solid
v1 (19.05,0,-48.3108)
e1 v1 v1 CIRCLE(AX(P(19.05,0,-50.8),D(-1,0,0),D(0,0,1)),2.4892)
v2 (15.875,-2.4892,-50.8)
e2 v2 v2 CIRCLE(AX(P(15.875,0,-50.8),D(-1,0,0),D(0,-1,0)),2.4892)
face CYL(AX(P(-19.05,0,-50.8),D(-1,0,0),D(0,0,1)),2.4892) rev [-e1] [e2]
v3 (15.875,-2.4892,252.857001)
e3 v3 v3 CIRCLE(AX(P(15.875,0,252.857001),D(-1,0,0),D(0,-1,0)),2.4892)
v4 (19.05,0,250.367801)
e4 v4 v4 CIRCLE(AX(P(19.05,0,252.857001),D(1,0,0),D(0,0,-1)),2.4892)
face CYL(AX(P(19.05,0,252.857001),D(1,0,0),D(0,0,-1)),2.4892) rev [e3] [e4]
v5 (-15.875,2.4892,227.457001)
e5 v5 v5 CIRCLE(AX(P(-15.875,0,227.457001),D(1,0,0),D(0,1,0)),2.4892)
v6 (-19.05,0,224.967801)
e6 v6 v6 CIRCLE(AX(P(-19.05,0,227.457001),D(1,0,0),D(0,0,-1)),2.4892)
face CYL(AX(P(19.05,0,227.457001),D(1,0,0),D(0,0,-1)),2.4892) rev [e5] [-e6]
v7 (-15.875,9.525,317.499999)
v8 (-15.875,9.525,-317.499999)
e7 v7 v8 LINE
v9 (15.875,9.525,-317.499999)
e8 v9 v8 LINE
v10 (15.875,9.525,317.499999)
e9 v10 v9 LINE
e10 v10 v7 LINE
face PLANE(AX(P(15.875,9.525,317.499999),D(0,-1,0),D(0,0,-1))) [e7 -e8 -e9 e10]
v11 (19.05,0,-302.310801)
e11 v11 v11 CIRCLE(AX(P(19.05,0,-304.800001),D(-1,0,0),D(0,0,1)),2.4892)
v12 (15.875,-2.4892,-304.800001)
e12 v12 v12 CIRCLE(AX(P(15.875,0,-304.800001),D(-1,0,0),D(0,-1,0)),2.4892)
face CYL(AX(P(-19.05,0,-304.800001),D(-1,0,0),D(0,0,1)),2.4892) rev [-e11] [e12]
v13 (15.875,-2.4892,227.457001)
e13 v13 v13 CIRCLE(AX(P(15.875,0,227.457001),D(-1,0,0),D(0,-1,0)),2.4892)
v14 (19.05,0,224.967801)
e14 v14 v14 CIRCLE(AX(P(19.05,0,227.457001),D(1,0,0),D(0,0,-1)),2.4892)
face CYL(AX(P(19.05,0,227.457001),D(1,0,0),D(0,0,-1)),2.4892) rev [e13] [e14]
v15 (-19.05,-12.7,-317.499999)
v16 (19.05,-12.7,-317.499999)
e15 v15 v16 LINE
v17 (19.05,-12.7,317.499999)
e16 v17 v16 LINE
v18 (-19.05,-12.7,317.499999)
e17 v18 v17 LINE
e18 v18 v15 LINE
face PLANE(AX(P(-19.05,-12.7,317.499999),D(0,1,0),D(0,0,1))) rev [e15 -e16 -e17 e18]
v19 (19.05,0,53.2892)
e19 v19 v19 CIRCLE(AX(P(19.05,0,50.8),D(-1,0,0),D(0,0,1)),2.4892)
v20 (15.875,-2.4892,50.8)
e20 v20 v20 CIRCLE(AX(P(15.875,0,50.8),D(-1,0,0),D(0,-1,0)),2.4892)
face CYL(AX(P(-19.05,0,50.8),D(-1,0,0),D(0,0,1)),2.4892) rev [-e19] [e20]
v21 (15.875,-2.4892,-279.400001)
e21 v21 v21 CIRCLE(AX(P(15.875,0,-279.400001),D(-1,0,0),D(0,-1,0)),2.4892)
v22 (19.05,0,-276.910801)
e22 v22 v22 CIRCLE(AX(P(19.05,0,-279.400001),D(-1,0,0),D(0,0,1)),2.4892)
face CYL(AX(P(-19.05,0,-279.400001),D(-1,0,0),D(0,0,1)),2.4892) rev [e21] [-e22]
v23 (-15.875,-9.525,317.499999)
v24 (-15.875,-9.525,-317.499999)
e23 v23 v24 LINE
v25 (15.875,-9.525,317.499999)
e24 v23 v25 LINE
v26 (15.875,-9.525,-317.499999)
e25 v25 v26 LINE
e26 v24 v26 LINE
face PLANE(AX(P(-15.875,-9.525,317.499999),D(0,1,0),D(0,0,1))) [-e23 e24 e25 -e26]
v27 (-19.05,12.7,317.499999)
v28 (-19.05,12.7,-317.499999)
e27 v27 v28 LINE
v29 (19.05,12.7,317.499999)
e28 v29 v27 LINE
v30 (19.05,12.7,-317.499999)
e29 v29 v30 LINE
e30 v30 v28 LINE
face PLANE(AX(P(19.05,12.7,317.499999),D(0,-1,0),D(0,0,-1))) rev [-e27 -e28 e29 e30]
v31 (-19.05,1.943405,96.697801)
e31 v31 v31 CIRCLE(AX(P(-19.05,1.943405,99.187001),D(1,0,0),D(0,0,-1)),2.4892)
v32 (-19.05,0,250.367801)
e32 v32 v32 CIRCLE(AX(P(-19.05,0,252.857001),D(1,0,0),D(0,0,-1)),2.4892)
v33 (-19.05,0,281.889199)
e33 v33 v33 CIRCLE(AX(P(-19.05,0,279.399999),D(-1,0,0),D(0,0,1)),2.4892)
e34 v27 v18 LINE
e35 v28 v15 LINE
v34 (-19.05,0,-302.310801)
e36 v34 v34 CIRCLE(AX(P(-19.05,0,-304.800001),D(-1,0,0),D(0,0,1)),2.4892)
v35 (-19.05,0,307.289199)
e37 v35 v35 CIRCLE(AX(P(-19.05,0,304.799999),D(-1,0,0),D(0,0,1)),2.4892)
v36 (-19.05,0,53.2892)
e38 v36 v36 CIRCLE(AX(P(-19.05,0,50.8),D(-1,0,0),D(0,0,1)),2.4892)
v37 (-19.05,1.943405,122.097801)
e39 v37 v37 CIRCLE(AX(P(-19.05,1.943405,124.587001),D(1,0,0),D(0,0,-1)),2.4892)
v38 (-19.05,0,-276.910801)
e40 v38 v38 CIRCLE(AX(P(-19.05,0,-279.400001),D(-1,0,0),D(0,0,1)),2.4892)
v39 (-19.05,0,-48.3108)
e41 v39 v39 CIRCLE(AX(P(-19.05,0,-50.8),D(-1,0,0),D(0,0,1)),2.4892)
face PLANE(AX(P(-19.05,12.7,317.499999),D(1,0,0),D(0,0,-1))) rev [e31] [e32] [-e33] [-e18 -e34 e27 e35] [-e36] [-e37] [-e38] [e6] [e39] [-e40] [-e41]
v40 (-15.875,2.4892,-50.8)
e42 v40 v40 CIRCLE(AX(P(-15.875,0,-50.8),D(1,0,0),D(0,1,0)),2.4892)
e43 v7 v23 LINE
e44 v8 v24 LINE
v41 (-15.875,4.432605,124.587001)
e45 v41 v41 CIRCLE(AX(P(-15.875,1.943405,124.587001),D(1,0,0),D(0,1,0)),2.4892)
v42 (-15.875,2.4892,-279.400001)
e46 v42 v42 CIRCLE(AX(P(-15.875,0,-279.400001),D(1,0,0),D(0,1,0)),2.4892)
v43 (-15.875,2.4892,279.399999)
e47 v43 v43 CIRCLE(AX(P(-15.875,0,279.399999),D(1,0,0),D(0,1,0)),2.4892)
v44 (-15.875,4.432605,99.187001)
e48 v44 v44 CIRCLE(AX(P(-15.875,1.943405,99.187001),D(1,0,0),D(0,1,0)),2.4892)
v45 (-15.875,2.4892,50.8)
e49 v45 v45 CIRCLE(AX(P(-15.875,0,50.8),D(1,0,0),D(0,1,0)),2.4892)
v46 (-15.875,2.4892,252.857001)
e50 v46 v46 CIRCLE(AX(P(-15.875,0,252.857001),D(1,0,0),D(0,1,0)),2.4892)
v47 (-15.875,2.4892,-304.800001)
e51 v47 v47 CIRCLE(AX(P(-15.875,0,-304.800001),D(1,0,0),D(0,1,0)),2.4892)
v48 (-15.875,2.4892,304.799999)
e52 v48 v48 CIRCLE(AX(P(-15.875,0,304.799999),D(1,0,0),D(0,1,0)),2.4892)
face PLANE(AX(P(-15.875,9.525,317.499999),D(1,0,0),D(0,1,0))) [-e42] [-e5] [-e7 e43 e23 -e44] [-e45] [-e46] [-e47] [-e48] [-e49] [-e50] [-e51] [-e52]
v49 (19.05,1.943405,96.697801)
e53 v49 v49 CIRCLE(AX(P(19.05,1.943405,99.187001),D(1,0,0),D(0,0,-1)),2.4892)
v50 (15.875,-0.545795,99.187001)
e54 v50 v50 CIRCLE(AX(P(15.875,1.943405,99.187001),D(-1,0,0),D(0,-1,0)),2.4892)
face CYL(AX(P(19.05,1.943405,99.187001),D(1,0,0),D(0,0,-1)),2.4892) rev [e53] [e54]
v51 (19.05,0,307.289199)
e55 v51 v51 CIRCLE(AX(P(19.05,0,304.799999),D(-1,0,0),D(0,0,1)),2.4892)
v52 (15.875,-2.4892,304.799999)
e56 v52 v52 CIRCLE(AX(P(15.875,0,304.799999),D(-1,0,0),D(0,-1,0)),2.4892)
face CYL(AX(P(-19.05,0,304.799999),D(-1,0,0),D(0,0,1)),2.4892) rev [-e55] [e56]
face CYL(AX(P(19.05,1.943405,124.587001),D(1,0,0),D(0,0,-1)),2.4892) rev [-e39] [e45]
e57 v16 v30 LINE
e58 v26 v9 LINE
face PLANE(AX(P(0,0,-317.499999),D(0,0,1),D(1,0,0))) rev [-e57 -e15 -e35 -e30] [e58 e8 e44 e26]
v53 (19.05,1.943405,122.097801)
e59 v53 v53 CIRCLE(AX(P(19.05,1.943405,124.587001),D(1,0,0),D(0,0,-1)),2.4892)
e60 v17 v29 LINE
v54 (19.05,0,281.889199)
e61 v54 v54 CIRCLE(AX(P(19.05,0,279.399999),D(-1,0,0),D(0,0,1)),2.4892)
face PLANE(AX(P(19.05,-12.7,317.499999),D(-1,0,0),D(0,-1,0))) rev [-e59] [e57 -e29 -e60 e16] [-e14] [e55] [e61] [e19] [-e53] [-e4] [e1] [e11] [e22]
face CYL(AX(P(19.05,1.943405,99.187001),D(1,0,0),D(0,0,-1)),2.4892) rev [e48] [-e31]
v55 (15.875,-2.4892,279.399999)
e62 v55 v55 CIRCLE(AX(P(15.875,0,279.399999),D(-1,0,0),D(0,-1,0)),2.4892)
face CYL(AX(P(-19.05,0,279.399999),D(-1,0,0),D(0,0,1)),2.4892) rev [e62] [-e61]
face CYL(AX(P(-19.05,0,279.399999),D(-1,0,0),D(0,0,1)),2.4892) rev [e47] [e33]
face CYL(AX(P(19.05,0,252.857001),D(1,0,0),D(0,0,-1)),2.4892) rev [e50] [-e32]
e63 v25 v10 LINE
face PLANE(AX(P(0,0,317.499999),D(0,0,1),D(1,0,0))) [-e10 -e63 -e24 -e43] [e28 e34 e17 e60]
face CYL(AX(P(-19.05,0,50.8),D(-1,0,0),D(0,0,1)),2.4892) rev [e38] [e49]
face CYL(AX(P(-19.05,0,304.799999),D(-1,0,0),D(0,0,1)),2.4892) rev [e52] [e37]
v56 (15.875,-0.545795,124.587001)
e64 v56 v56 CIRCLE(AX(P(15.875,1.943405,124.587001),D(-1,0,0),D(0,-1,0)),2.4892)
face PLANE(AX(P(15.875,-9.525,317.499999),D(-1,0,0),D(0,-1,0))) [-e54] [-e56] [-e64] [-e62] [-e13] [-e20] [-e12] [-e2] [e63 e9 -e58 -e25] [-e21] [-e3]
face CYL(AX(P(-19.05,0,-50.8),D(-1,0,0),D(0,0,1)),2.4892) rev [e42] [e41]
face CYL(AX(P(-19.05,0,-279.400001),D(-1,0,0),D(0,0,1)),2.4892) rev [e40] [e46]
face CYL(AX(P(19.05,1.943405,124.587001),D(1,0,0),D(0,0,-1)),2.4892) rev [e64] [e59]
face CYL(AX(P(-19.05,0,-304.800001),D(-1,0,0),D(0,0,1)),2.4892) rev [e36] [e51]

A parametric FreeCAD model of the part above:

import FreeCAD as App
import Part
import Sketcher

V = App.Vector
Q = App.Units.Quantity


def add_polygon(sketch, points):
    """Adds a closed chain of lines whose ends are joined by coincident constraints."""
    first, n = sketch.GeometryCount, len(points)
    for a, b in zip(points, points[1:] + points[:1]):
        sketch.addGeometry(Part.LineSegment(App.Vector(*a, 0), App.Vector(*b, 0)), False)
    for i in range(n):
        sketch.addConstraint(Sketcher.Constraint("Coincident", first + i, 2, first + (i + 1) % n, 1))

doc = App.newDocument("Part")
body = doc.addObject("PartDesign::Body", "Body")

# Sketch on XY plane
sketch1 = body.newObject("Sketcher::SketchObject", "Sketch")
sketch1.AttachmentSupport = (doc.getObject("XY_Plane"), [""])
sketch1.MapMode = "FlatFace"
add_polygon(sketch1, [(-19.05, 12.7), (-19.05, -12.7), (19.05, -12.7), (19.05, 12.7)])  # lines 0-3
add_polygon(sketch1, [(15.875, -9.525), (-15.875, -9.525), (-15.875, 9.525), (15.875, 9.525)])  # lines 4-7
sketch1.addConstraint([
    Sketcher.Constraint("Vertical", 0),
    Sketcher.Constraint("Horizontal", 1),
    Sketcher.Constraint("Vertical", 2),
    Sketcher.Constraint("Horizontal", 3),
    Sketcher.Constraint("Horizontal", 4),
    Sketcher.Constraint("Vertical", 5),
    Sketcher.Constraint("Horizontal", 6),
    Sketcher.Constraint("Vertical", 7),
    Sketcher.Constraint("Symmetric", 0, 2, 2, 2, -1, 1),
    Sketcher.Constraint("Symmetric", 4, 2, 6, 2, -1, 1),
    Sketcher.Constraint("DistanceY", 0, 2, 0, 1, Q("1 in")),
    Sketcher.Constraint("DistanceX", 1, 1, 1, 2, Q("1.5 in")),
    Sketcher.Constraint("DistanceX", 4, 2, 4, 1, Q("1.25 in")),
    Sketcher.Constraint("DistanceY", 5, 1, 5, 2, Q("0.75 in")),
])
pad1 = body.newObject("PartDesign::Pad", "Pad")
pad1.Profile = sketch1
pad1.Type = "TwoLengths"
pad1.Length = Q("12.5 in")
pad1.Length2 = Q("12.5 in")

# Sketch on YZ plane
sketch2 = body.newObject("Sketcher::SketchObject", "Sketch001")
sketch2.AttachmentSupport = (doc.getObject("YZ_Plane"), [""])
sketch2.MapMode = "FlatFace"
sketch2.AttachmentOffset = App.Placement(V(0, 0, -0.75 * 25.4), App.Rotation())
sketch2.addGeometry([
    Part.Circle(V(0, -304.800001, 0), V(0, 0, 1), 2.4892),
    Part.Circle(V(0, -279.400001, 0), V(0, 0, 1), 2.4892),
    Part.Circle(V(0, 279.399999, 0), V(0, 0, 1), 2.4892),
    Part.Circle(V(0, 304.799999, 0), V(0, 0, 1), 2.4892),
], False)
sketch2.addConstraint([
    Sketcher.Constraint("Equal", 0, 1),
    Sketcher.Constraint("Equal", 1, 2),
    Sketcher.Constraint("Equal", 2, 3),
    Sketcher.Constraint("Symmetric", 1, 3, 2, 3, -1, 1),
    Sketcher.Constraint("Symmetric", 0, 3, 3, 3, -1, 1),
    Sketcher.Constraint("PointOnObject", 0, 3, -2),
    Sketcher.Constraint("PointOnObject", 1, 3, -2),
    Sketcher.Constraint("Diameter", 0, Q("0.196 in")),
    Sketcher.Constraint("DistanceY", 0, 3, -1, 1, Q("12 in")),
    Sketcher.Constraint("DistanceY", 1, 3, -1, 1, Q("11 in")),
])
doc.recompute()
hole = body.newObject("PartDesign::Hole", "Hole")
hole.Profile = sketch2
hole.ThreadType = "None"
hole.Diameter = Q("0.196 in")
hole.DepthType = "ThroughAll"
hole.Reversed = True

# Sketch on YZ plane
sketch3 = body.newObject("Sketcher::SketchObject", "Sketch002")
sketch3.AttachmentSupport = (doc.getObject("YZ_Plane"), [""])
sketch3.MapMode = "FlatFace"
sketch3.AttachmentOffset = App.Placement(V(0, 0, 0.75 * 25.4), App.Rotation())
sketch3.addGeometry([
    Part.Circle(V(0, 252.857001, 0), V(0, 0, 1), 2.4892),
    Part.Circle(V(0, 227.457001, 0), V(0, 0, 1), 2.4892),
    Part.Circle(V(1.943405, 124.587001, 0), V(0, 0, 1), 2.4892),
    Part.Circle(V(1.943405, 99.187001, 0), V(0, 0, 1), 2.4892),
], False)
sketch3.addConstraint([
    Sketcher.Constraint("Equal", 0, 1),
    Sketcher.Constraint("Equal", 1, 2),
    Sketcher.Constraint("Equal", 2, 3),
    Sketcher.Constraint("PointOnObject", 0, 3, -2),
    Sketcher.Constraint("PointOnObject", 1, 3, -2),
    Sketcher.Constraint("Vertical", 2, 3, 3, 3),
    Sketcher.Constraint("Diameter", 0, Q("0.196 in")),
    Sketcher.Constraint("DistanceY", 1, 3, 0, 3, Q("1 in")),
    Sketcher.Constraint("DistanceY", 3, 3, 2, 3, Q("1 in")),
    Sketcher.Constraint("DistanceY", 2, 3, 1, 3, Q("4.05 in")),
    Sketcher.Constraint("DistanceY", -1, 1, 0, 3, Q("9.955 in")),
    Sketcher.Constraint("DistanceX", -1, 1, 2, 3, Q("1.943405 mm")),
])
doc.recompute()
hole2 = body.newObject("PartDesign::Hole", "Hole001")
hole2.Profile = sketch3
hole2.ThreadType = "None"
hole2.Diameter = Q("0.196 in")
hole2.DepthType = "ThroughAll"

# Sketch on YZ plane
sketch4 = body.newObject("Sketcher::SketchObject", "Sketch003")
sketch4.AttachmentSupport = (doc.getObject("YZ_Plane"), [""])
sketch4.MapMode = "FlatFace"
sketch4.AttachmentOffset = App.Placement(V(0, 0, -0.75 * 25.4), App.Rotation())
sketch4.addGeometry([
    Part.Circle(V(0, -50.8, 0), V(0, 0, 1), 2.4892),
    Part.Circle(V(0, 50.8, 0), V(0, 0, 1), 2.4892),
], False)
sketch4.addConstraint([
    Sketcher.Constraint("Equal", 0, 1),
    Sketcher.Constraint("Symmetric", 0, 3, 1, 3, -1, 1),
    Sketcher.Constraint("PointOnObject", 0, 3, -2),
    Sketcher.Constraint("Diameter", 0, Q("0.196 in")),
    Sketcher.Constraint("DistanceY", 0, 3, -1, 1, Q("2 in")),
])
doc.recompute()
hole3 = body.newObject("PartDesign::Hole", "Hole002")
hole3.Profile = sketch4
hole3.ThreadType = "None"
hole3.Diameter = Q("0.196 in")
hole3.DepthType = "ThroughAll"
hole3.Reversed = True

doc.recompute()
